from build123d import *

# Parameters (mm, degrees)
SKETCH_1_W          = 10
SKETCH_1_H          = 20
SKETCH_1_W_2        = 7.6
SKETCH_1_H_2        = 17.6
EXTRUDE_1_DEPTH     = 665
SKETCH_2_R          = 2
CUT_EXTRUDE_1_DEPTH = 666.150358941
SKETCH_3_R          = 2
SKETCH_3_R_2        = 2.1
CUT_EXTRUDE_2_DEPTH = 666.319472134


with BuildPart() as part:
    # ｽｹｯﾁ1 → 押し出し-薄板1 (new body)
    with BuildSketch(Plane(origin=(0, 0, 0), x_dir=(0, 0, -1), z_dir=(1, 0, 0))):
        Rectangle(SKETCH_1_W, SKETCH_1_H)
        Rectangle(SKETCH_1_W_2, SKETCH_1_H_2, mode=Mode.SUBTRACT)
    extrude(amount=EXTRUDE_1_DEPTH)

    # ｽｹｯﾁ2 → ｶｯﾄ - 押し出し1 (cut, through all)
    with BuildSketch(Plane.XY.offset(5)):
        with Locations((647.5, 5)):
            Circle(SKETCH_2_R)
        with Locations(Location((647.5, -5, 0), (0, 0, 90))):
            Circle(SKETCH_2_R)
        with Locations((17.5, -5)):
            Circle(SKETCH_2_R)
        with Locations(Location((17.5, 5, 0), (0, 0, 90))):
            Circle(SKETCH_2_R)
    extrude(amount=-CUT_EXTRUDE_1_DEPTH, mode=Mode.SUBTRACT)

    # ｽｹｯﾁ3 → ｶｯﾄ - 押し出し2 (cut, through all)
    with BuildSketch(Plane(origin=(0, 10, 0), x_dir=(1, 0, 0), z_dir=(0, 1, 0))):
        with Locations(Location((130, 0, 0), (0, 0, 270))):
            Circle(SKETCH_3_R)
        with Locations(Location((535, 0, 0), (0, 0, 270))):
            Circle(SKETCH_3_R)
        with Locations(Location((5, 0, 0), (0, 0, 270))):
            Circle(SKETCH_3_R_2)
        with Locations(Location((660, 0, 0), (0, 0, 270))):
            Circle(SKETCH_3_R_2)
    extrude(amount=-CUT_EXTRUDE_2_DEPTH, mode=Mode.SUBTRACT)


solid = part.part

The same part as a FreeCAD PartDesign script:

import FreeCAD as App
import Part
import Sketcher

V = App.Vector


def add_polygon(sketch, points):
    """Adds a closed chain of lines whose ends are joined by coincident constraints."""
    first, n = sketch.GeometryCount, len(points)
    for a, b in zip(points, points[1:] + points[:1]):
        sketch.addGeometry(Part.LineSegment(App.Vector(*a, 0), App.Vector(*b, 0)), False)
    for i in range(n):
        sketch.addConstraint(Sketcher.Constraint("Coincident", first + i, 2, first + (i + 1) % n, 1))

doc = App.newDocument("Part")
body = doc.addObject("PartDesign::Body", "Body")

# Sketch on YZ plane
sketch1 = doc.addObject("Sketcher::SketchObject", "Sketch")
body.addObject(sketch1)
sketch1.AttachmentSupport = (doc.YZ_Plane, [""])
sketch1.MapMode = "FlatFace"
add_polygon(sketch1, [(10, 5), (-10, 5), (-10, -5), (10, -5)])  # lines 0-3
add_polygon(sketch1, [(-8.8, -3.8), (-8.8, 3.8), (8.8, 3.8), (8.8, -3.8)])  # lines 4-7
sketch1.addConstraint(Sketcher.Constraint("Horizontal", 0))
sketch1.addConstraint(Sketcher.Constraint("Vertical", 1))
sketch1.addConstraint(Sketcher.Constraint("Horizontal", 2))
sketch1.addConstraint(Sketcher.Constraint("Vertical", 3))
sketch1.addConstraint(Sketcher.Constraint("Vertical", 4))
sketch1.addConstraint(Sketcher.Constraint("Horizontal", 5))
sketch1.addConstraint(Sketcher.Constraint("Vertical", 6))
sketch1.addConstraint(Sketcher.Constraint("Horizontal", 7))
sketch1.addConstraint(Sketcher.Constraint("Symmetric", 0, 2, 2, 2, -1, 1))
sketch1.addConstraint(Sketcher.Constraint("Symmetric", 4, 2, 6, 2, -1, 1))
sketch1.addConstraint(Sketcher.Constraint("DistanceX", 0, 2, 0, 1, 20.0))
sketch1.addConstraint(Sketcher.Constraint("DistanceY", 1, 2, 1, 1, 10.0))
sketch1.addConstraint(Sketcher.Constraint("DistanceX", 5, 1, 5, 2, 17.6))
sketch1.addConstraint(Sketcher.Constraint("DistanceY", 4, 1, 4, 2, 7.6))
pad1 = doc.addObject("PartDesign::Pad", "Pad")
body.addObject(pad1)
pad1.Profile = sketch1
pad1.Length = 665

# Sketch on XY plane
sketch2 = doc.addObject("Sketcher::SketchObject", "Sketch001")
body.addObject(sketch2)
sketch2.AttachmentSupport = (doc.XY_Plane, [""])
sketch2.MapMode = "FlatFace"
sketch2.AttachmentOffset = App.Placement(V(0, 0, 5), App.Rotation())
sketch2.addGeometry(Part.Circle(V(647.5, 5, 0), V(0, 0, 1), 2), False)
sketch2.addGeometry(Part.Circle(V(647.5, -5, 0), V(0, 0, 1), 2), False)
sketch2.addGeometry(Part.Circle(V(17.5, -5, 0), V(0, 0, 1), 2), False)
sketch2.addGeometry(Part.Circle(V(17.5, 5, 0), V(0, 0, 1), 2), False)
sketch2.addConstraint(Sketcher.Constraint("Equal", 0, 1))
sketch2.addConstraint(Sketcher.Constraint("Equal", 1, 2))
sketch2.addConstraint(Sketcher.Constraint("Equal", 2, 3))
sketch2.addConstraint(Sketcher.Constraint("Symmetric", 0, 3, 1, 3, -1))
sketch2.addConstraint(Sketcher.Constraint("Symmetric", 2, 3, 3, 3, -1))
sketch2.addConstraint(Sketcher.Constraint("Horizontal", 1, 3, 2, 3))
sketch2.addConstraint(Sketcher.Constraint("Diameter", 0, 4.0))
sketch2.addConstraint(Sketcher.Constraint("DistanceY", -1, 1, 0, 3, 5.0))
sketch2.addConstraint(Sketcher.Constraint("DistanceX", 2, 3, 1, 3, 630.0))
sketch2.addConstraint(Sketcher.Constraint("DistanceX", -1, 1, 0, 3, 647.5))
pocket1 = doc.addObject("PartDesign::Pocket", "Pocket")
body.addObject(pocket1)
pocket1.Profile = sketch2
pocket1.Type = "ThroughAll"

# Sketch on XZ plane
sketch3 = doc.addObject("Sketcher::SketchObject", "Sketch002")
body.addObject(sketch3)
sketch3.AttachmentSupport = (doc.XZ_Plane, [""])
sketch3.MapMode = "FlatFace"
sketch3.AttachmentOffset = App.Placement(V(0, 0, -10), App.Rotation())
sketch3.addGeometry(Part.Circle(V(130, 0, 0), V(0, 0, 1), 2), False)
sketch3.addGeometry(Part.Circle(V(535, 0, 0), V(0, 0, 1), 2), False)
sketch3.addGeometry(Part.Circle(V(5, 0, 0), V(0, 0, 1), 2.1), False)
sketch3.addGeometry(Part.Circle(V(660, 0, 0), V(0, 0, 1), 2.1), False)
sketch3.addConstraint(Sketcher.Constraint("Equal", 0, 1))
sketch3.addConstraint(Sketcher.Constraint("Equal", 2, 3))
sketch3.addConstraint(Sketcher.Constraint("PointOnObject", 0, 3, -1))
sketch3.addConstraint(Sketcher.Constraint("PointOnObject", 1, 3, -1))
sketch3.addConstraint(Sketcher.Constraint("PointOnObject", 2, 3, -1))
sketch3.addConstraint(Sketcher.Constraint("PointOnObject", 3, 3, -1))
sketch3.addConstraint(Sketcher.Constraint("Diameter", 0, 4.0))
sketch3.addConstraint(Sketcher.Constraint("Diameter", 2, 4.2))
sketch3.addConstraint(Sketcher.Constraint("DistanceX", -1, 1, 0, 3, 130.0))
sketch3.addConstraint(Sketcher.Constraint("DistanceX", -1, 1, 1, 3, 535.0))
sketch3.addConstraint(Sketcher.Constraint("DistanceX", -1, 1, 2, 3, 5.0))
sketch3.addConstraint(Sketcher.Constraint("DistanceX", -1, 1, 3, 3, 660.0))
pocket2 = doc.addObject("PartDesign::Pocket", "Pocket001")
body.addObject(pocket2)
pocket2.Profile = sketch3
pocket2.Type = "ThroughAll"
pocket2.Reversed = True

doc.recompute()
